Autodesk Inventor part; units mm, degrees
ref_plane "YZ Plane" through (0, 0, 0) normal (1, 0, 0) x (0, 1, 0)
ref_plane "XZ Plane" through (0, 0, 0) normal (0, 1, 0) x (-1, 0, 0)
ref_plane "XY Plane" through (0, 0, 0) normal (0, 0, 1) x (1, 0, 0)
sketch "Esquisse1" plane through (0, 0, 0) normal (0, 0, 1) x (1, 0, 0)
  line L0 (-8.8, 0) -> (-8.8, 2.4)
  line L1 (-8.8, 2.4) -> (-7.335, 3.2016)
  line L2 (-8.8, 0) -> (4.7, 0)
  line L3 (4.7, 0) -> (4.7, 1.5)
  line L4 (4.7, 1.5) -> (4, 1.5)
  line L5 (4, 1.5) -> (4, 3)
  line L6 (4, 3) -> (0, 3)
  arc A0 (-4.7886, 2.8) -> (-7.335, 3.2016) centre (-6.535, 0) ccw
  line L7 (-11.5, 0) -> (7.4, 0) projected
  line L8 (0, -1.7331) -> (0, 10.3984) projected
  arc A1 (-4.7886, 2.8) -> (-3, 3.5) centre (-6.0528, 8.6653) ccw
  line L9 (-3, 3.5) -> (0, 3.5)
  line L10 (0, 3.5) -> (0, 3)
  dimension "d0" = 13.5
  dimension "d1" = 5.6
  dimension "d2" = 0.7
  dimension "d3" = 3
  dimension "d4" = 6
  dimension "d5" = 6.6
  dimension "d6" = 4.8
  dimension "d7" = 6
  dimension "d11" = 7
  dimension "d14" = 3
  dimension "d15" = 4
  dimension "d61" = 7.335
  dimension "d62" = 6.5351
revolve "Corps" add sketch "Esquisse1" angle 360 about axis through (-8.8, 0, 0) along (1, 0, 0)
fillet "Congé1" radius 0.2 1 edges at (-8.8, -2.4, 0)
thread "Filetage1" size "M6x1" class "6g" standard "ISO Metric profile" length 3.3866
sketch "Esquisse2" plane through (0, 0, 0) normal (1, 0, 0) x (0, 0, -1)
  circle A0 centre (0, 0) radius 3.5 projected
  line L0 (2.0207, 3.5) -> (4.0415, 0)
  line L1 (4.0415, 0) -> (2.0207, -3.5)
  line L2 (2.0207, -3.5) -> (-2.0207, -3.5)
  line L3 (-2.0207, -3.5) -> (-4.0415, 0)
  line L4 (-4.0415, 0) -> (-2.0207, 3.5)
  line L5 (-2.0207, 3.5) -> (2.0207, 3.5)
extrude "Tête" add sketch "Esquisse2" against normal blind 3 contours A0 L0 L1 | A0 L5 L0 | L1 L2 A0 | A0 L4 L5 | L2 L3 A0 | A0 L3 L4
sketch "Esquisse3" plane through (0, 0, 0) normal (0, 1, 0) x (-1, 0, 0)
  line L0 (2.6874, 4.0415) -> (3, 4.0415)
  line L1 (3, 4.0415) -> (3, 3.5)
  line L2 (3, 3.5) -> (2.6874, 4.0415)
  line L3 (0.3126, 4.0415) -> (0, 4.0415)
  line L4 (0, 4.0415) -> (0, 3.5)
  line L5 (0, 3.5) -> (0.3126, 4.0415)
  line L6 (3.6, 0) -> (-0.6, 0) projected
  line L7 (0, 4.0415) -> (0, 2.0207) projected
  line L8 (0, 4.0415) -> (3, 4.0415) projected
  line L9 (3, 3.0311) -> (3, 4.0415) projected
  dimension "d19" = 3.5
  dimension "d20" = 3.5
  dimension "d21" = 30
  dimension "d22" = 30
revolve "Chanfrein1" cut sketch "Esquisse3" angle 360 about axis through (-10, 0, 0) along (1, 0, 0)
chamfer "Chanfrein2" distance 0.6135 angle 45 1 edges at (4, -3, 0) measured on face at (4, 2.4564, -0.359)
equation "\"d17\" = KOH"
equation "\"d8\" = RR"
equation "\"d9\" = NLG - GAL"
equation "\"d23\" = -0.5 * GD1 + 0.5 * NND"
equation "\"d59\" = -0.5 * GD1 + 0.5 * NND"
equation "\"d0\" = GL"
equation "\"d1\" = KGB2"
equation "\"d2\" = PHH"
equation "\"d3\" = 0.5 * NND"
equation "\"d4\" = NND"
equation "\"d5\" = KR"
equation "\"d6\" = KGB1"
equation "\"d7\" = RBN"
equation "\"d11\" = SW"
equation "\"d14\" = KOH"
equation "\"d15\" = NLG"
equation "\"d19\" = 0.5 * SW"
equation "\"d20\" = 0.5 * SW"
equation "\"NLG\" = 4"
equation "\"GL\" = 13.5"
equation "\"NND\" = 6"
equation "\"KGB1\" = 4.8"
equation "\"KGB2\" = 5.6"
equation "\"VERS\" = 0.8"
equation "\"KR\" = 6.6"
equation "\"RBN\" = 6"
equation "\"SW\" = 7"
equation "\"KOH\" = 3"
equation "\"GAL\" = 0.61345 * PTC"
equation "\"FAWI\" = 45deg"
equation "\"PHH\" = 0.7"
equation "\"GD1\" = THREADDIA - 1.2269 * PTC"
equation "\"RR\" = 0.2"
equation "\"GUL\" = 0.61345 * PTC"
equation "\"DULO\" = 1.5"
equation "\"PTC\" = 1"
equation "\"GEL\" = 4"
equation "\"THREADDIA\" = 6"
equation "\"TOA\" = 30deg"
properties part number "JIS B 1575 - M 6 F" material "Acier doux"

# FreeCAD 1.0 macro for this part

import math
import FreeCAD as App
import Part
import Sketcher
Q = App.Units.Quantity


def edges_at(feature, points):
    """Names of the edges that pass closest to the given points."""
    edges = feature.Shape.Edges
    near = lambda p: min(range(len(edges)), key=lambda i: edges[i].distToShape(Part.Vertex(*p))[0])
    return sorted({f"Edge{near(p) + 1}" for p in points})


def add_polygon(sketch, points):
    """Adds a closed chain of lines whose ends are joined by coincident constraints."""
    first, n = sketch.GeometryCount, len(points)
    for a, b in zip(points, points[1:] + points[:1]):
        sketch.addGeometry(Part.LineSegment(App.Vector(*a, 0), App.Vector(*b, 0)), False)
    for i in range(n):
        sketch.addConstraint(Sketcher.Constraint("Coincident", first + i, 2, first + (i + 1) % n, 1))

doc = App.newDocument("Part")
body = doc.addObject("PartDesign::Body", "Body")

# Sketch on XY plane
sketch1 = body.newObject("Sketcher::SketchObject", "Sketch")
sketch1.AttachmentSupport = (doc.getObject("XY_Plane"), [""])
sketch1.MapMode = "FlatFace"
sketch1.addGeometry(Part.LineSegment(App.Vector(-8.8, 2.4, 0), App.Vector(-8.8, 0, 0)), False)
sketch1.addGeometry(Part.LineSegment(App.Vector(-8.8, 0, 0), App.Vector(4.7, 0, 0)), False)
sketch1.addGeometry(Part.LineSegment(App.Vector(4.7, 0, 0), App.Vector(4.7, 1.5, 0)), False)
sketch1.addGeometry(Part.LineSegment(App.Vector(4.7, 1.5, 0), App.Vector(4, 1.5, 0)), False)
sketch1.addGeometry(Part.LineSegment(App.Vector(4, 1.5, 0), App.Vector(4, 3, 0)), False)
sketch1.addGeometry(Part.LineSegment(App.Vector(4, 3, 0), App.Vector(0, 3, 0)), False)
sketch1.addGeometry(Part.LineSegment(App.Vector(0, 3, 0), App.Vector(0, 3.5, 0)), False)
sketch1.addGeometry(Part.LineSegment(App.Vector(0, 3.5, 0), App.Vector(-3, 3.5, 0)), False)
sketch1.addGeometry(Part.ArcOfCircle(Part.Circle(App.Vector(-6.1, 8.7, 0), App.Vector(0, 0, 1), 6), math.radians(-77.84), math.radians(-59.42)), False)
sketch1.addGeometry(Part.ArcOfCircle(Part.Circle(App.Vector(-6.5, 0, 0), App.Vector(0, 0, 1), 3.3), math.radians(58), math.radians(104)), False)
sketch1.addGeometry(Part.LineSegment(App.Vector(-7.3, 3.2, 0), App.Vector(-8.8, 2.4, 0)), False)
sketch1.addConstraint(Sketcher.Constraint("Coincident", 0, 2, 1, 1))
sketch1.addConstraint(Sketcher.Constraint("Coincident", 1, 2, 2, 1))
sketch1.addConstraint(Sketcher.Constraint("Coincident", 2, 2, 3, 1))
sketch1.addConstraint(Sketcher.Constraint("Coincident", 3, 2, 4, 1))
sketch1.addConstraint(Sketcher.Constraint("Coincident", 4, 2, 5, 1))
sketch1.addConstraint(Sketcher.Constraint("Coincident", 5, 2, 6, 1))
sketch1.addConstraint(Sketcher.Constraint("Coincident", 6, 2, 7, 1))
sketch1.addConstraint(Sketcher.Constraint("Coincident", 7, 2, 8, 2))
sketch1.addConstraint(Sketcher.Constraint("Coincident", 8, 1, 9, 1))
sketch1.addConstraint(Sketcher.Constraint("Coincident", 9, 2, 10, 1))
sketch1.addConstraint(Sketcher.Constraint("Coincident", 10, 2, 0, 1))
sketch1.addConstraint(Sketcher.Constraint("Vertical", 0))
sketch1.addConstraint(Sketcher.Constraint("Horizontal", 1))
sketch1.addConstraint(Sketcher.Constraint("Vertical", 2))
sketch1.addConstraint(Sketcher.Constraint("Horizontal", 3))
sketch1.addConstraint(Sketcher.Constraint("Vertical", 4))
sketch1.addConstraint(Sketcher.Constraint("Horizontal", 5))
sketch1.addConstraint(Sketcher.Constraint("Vertical", 6))
sketch1.addConstraint(Sketcher.Constraint("Horizontal", 7))
sketch1.addConstraint(Sketcher.Constraint("PointOnObject", 9, 3, -1))
sketch1.addConstraint(Sketcher.Constraint("PointOnObject", 0, 2, -1))
sketch1.addConstraint(Sketcher.Constraint("PointOnObject", 5, 2, -2))
sketch1.addConstraint(Sketcher.Constraint("Equal", 2, 4))
sketch1.addConstraint(Sketcher.Constraint("Radius", 8, Q("6 mm")))
sketch1.addConstraint(Sketcher.Constraint("Radius", 9, Q("3.3 mm")))
sketch1.addConstraint(Sketcher.Constraint("DistanceX", 5, 2, 5, 1, Q("4 mm")))
sketch1.addConstraint(Sketcher.Constraint("DistanceX", 7, 2, 7, 1, Q("3 mm")))
sketch1.addConstraint(Sketcher.Constraint("DistanceX", 1, 1, 1, 2, Q("13.5 mm")))
sketch1.addConstraint(Sketcher.Constraint("DistanceX", 3, 2, 3, 1, Q("0.7 mm")))
sketch1.addConstraint(Sketcher.Constraint("DistanceY", -1, 1, 4, 2, Q("3 mm")))
sketch1.addConstraint(Sketcher.Constraint("DistanceY", 8, 1, 7, 2, Q("0.7 mm")))
sketch1.addConstraint(Sketcher.Constraint("DistanceY", 0, 2, 0, 1, Q("2.4 mm")))
sketch1.addConstraint(Sketcher.Constraint("DistanceY", 6, 1, 6, 2, Q("0.5 mm")))
sketch1.addConstraint(Sketcher.Constraint("DistanceX", 9, 3, -1, 1, Q("6.535 mm")))
sketch1.addConstraint(Sketcher.Constraint("DistanceX", 9, 2, -1, 1, Q("7.335 mm")))
revolution = body.newObject("PartDesign::Revolution", "Revolution")
revolution.Profile = sketch1
revolution.ReferenceAxis = (sketch1, ["H_Axis"])
revolution.Angle = 360
doc.recompute()

fillet = body.newObject("PartDesign::Fillet", "Fillet")
fillet.Base = (revolution, edges_at(revolution, [(-8.8, -2.4, 0)]))
fillet.Radius = 0.2

# Sketch on YZ plane
sketch2 = body.newObject("Sketcher::SketchObject", "Sketch001")
sketch2.AttachmentSupport = (doc.getObject("YZ_Plane"), [""])
sketch2.MapMode = "FlatFace"
sketch2.addGeometry(Part.ArcOfCircle(Part.Circle(App.Vector(0, 0, 0), App.Vector(0, 0, 1), 3.5), math.radians(-120), math.radians(-60)), False)
sketch2.addGeometry(Part.LineSegment(App.Vector(-1.8, -3, 0), App.Vector(0, -4, 0)), False)
sketch2.addGeometry(Part.LineSegment(App.Vector(0, -4, 0), App.Vector(1.8, -3, 0)), False)
sketch2.addGeometry(Part.ArcOfCircle(Part.Circle(App.Vector(0, 0, 0), App.Vector(0, 0, 1), 3.5), math.radians(-60), math.radians(0)), False)
sketch2.addGeometry(Part.LineSegment(App.Vector(1.8, -3, 0), App.Vector(3.5, -2, 0)), False)
sketch2.addGeometry(Part.LineSegment(App.Vector(3.5, -2, 0), App.Vector(3.5, 0, 0)), False)
sketch2.addGeometry(Part.LineSegment(App.Vector(-3.5, -2, 0), App.Vector(-1.8, -3, 0)), False)
sketch2.addGeometry(Part.ArcOfCircle(Part.Circle(App.Vector(0, 0, 0), App.Vector(0, 0, 1), 3.5), math.radians(180), math.radians(240)), False)
sketch2.addGeometry(Part.LineSegment(App.Vector(-3.5, 0, 0), App.Vector(-3.5, -2, 0)), False)
sketch2.addGeometry(Part.ArcOfCircle(Part.Circle(App.Vector(0, 0, 0), App.Vector(0, 0, 1), 3.5), math.radians(0), math.radians(60)), False)
sketch2.addGeometry(Part.LineSegment(App.Vector(3.5, 0, 0), App.Vector(3.5, 2, 0)), False)
sketch2.addGeometry(Part.LineSegment(App.Vector(3.5, 2, 0), App.Vector(1.8, 3, 0)), False)
sketch2.addGeometry(Part.LineSegment(App.Vector(-3.5, 2, 0), App.Vector(-3.5, 0, 0)), False)
sketch2.addGeometry(Part.ArcOfCircle(Part.Circle(App.Vector(0, 0, 0), App.Vector(0, 0, 1), 3.5), math.radians(120), math.radians(180)), False)
sketch2.addGeometry(Part.LineSegment(App.Vector(-1.8, 3, 0), App.Vector(-3.5, 2, 0)), False)
sketch2.addGeometry(Part.ArcOfCircle(Part.Circle(App.Vector(0, 0, 0), App.Vector(0, 0, 1), 3.5), math.radians(60), math.radians(120)), False)
sketch2.addGeometry(Part.LineSegment(App.Vector(1.8, 3, 0), App.Vector(0, 4, 0)), False)
sketch2.addGeometry(Part.LineSegment(App.Vector(0, 4, 0), App.Vector(-1.8, 3, 0)), False)
sketch2.addConstraint(Sketcher.Constraint("Tangent", 0, 1, 1, 1))
sketch2.addConstraint(Sketcher.Constraint("Coincident", 1, 2, 2, 1))
sketch2.addConstraint(Sketcher.Constraint("Tangent", 2, 2, 0, 2))
sketch2.addConstraint(Sketcher.Constraint("Tangent", 3, 1, 4, 1))
sketch2.addConstraint(Sketcher.Constraint("Coincident", 4, 2, 5, 1))
sketch2.addConstraint(Sketcher.Constraint("Tangent", 5, 2, 3, 2))
sketch2.addConstraint(Sketcher.Constraint("Tangent", 6, 2, 7, 2))
sketch2.addConstraint(Sketcher.Constraint("Tangent", 7, 1, 8, 1))
sketch2.addConstraint(Sketcher.Constraint("Coincident", 8, 2, 6, 1))
sketch2.addConstraint(Sketcher.Constraint("Tangent", 9, 1, 10, 1))
sketch2.addConstraint(Sketcher.Constraint("Coincident", 10, 2, 11, 1))
sketch2.addConstraint(Sketcher.Constraint("Tangent", 11, 2, 9, 2))
sketch2.addConstraint(Sketcher.Constraint("Tangent", 12, 2, 13, 2))
sketch2.addConstraint(Sketcher.Constraint("Tangent", 13, 1, 14, 1))
sketch2.addConstraint(Sketcher.Constraint("Coincident", 14, 2, 12, 1))
sketch2.addConstraint(Sketcher.Constraint("Tangent", 15, 1, 16, 1))
sketch2.addConstraint(Sketcher.Constraint("Coincident", 16, 2, 17, 1))
sketch2.addConstraint(Sketcher.Constraint("Tangent", 17, 2, 15, 2))
sketch2.addConstraint(Sketcher.Constraint("Vertical", 5))
sketch2.addConstraint(Sketcher.Constraint("Vertical", 8))
sketch2.addConstraint(Sketcher.Constraint("Vertical", 10))
sketch2.addConstraint(Sketcher.Constraint("Vertical", 12))
sketch2.addConstraint(Sketcher.Constraint("Coincident", 0, 3, -1, 1))
sketch2.addConstraint(Sketcher.Constraint("Coincident", 3, 3, -1, 1))
sketch2.addConstraint(Sketcher.Constraint("Coincident", 7, 3, -1, 1))
sketch2.addConstraint(Sketcher.Constraint("Coincident", 9, 3, -1, 1))
sketch2.addConstraint(Sketcher.Constraint("Coincident", 13, 3, -1, 1))
sketch2.addConstraint(Sketcher.Constraint("Coincident", 15, 3, -1, 1))
sketch2.addConstraint(Sketcher.Constraint("Coincident", 3, 1, 2, 2))
sketch2.addConstraint(Sketcher.Constraint("Coincident", 6, 2, 0, 1))
sketch2.addConstraint(Sketcher.Constraint("Coincident", 15, 1, 11, 2))
sketch2.addConstraint(Sketcher.Constraint("Coincident", 17, 2, 13, 1))
sketch2.addConstraint(Sketcher.Constraint("Equal", 7, 9))
sketch2.addConstraint(Sketcher.Constraint("Symmetric", 1, 2, 16, 2, -1, 1))
sketch2.addConstraint(Sketcher.Constraint("PointOnObject", 1, 2, -2))
sketch2.addConstraint(Sketcher.Constraint("Equal", 2, 4))
sketch2.addConstraint(Sketcher.Constraint("Radius", 0, Q("3.5 mm")))
pad1 = body.newObject("PartDesign::Pad", "Pad")
pad1.Profile = sketch2
pad1.Length = 3
pad1.Reversed = True

# Sketch on XZ plane
sketch3 = body.newObject("Sketcher::SketchObject", "Sketch002")
sketch3.AttachmentSupport = (doc.getObject("XZ_Plane"), [""])
sketch3.MapMode = "FlatFace"
add_polygon(sketch3, [(-3, 4.04), (-2.69, 4.04), (-3, 3.5)])  # lines 0-2
add_polygon(sketch3, [(0, 3.5), (-0.31, 4.04), (0, 4.04)])  # lines 3-5
sketch3.addConstraint(Sketcher.Constraint("Horizontal", 0))
sketch3.addConstraint(Sketcher.Constraint("Vertical", 2))
sketch3.addConstraint(Sketcher.Constraint("Horizontal", 4))
sketch3.addConstraint(Sketcher.Constraint("Vertical", 5))
sketch3.addConstraint(Sketcher.Constraint("PointOnObject", 4, 2, -2))
sketch3.addConstraint(Sketcher.Constraint("Horizontal", 2, 2, 3, 2))
sketch3.addConstraint(Sketcher.Constraint("Horizontal", 1, 2, 5, 2))
sketch3.addConstraint(Sketcher.Constraint("Equal", 0, 4))
sketch3.addConstraint(Sketcher.Constraint("DistanceY", -1, 1, 1, 2, Q("3.5 mm")))
sketch3.addConstraint(Sketcher.Constraint("DistanceX", 1, 2, -1, 1, Q("3 mm")))
sketch3.addConstraint(Sketcher.Constraint("DistanceX", 0, 1, 0, 2, Q("0.3126 mm")))
sketch3.addConstraint(Sketcher.Constraint("DistanceY", 2, 1, 2, 2, Q("0.5415 mm")))
groove = body.newObject("PartDesign::Groove", "Groove")
groove.Profile = sketch3
groove.ReferenceAxis = (sketch3, ["H_Axis"])
groove.Angle = 360
doc.recompute()

chamfer = body.newObject("PartDesign::Chamfer", "Chamfer")
chamfer.Base = (groove, edges_at(groove, [(4, -3, 0)]))
chamfer.Size = 0.6135

doc.recompute()
